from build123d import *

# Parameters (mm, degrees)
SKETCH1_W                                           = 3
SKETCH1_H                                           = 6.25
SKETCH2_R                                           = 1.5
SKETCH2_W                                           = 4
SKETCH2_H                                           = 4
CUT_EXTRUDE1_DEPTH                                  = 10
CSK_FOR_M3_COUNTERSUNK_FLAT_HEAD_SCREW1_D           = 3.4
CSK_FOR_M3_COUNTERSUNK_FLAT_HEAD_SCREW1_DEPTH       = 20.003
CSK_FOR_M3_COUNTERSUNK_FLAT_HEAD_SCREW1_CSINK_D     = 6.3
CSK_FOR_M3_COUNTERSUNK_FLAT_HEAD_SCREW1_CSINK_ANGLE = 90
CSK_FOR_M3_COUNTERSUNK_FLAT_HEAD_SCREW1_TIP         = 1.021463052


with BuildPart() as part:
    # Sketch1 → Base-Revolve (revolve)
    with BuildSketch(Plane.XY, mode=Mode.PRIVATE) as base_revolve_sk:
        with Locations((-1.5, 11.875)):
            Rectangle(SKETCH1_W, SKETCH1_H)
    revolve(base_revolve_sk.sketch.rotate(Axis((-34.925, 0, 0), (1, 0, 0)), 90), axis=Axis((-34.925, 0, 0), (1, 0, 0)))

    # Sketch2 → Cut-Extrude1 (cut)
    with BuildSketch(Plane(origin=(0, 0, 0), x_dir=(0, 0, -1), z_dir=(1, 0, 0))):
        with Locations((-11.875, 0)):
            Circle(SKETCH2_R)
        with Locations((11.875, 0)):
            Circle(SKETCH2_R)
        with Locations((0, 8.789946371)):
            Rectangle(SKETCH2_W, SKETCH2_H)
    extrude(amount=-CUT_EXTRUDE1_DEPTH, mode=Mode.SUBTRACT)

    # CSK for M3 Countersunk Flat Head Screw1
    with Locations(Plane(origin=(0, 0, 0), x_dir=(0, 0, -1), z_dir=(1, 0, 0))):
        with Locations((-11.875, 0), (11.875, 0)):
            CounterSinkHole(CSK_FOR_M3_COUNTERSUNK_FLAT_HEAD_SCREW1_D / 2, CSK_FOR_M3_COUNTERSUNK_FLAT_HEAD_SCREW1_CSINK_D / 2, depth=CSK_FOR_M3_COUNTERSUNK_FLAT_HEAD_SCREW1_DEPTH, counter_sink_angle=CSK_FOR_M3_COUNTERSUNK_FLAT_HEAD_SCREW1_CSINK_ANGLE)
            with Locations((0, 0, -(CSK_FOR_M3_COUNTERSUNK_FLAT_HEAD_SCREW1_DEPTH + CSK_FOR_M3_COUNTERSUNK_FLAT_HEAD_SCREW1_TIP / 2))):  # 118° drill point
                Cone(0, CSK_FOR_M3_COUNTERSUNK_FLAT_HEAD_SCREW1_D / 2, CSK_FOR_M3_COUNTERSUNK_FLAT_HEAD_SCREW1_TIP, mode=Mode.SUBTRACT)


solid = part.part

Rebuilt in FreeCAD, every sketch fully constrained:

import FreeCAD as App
import Part
import Sketcher

V = App.Vector

doc = App.newDocument("Part")
params = doc.addObject("Spreadsheet::Sheet", "Params")
for row, (alias, value) in enumerate([
    ("sketch1_width", "3 mm"),
    ("sketch1_height", "6.25 mm"),
    ("revolution_angle", "360 deg"),
    ("sketch2_diameter", "3 mm"),
    ("sketch2_width", "4 mm"),
    ("pocket1_length", "10 mm"),
    ("sketch3_diameter", "3.4 mm"),
    ("hole_diameter", "3.4 mm"),
    ("hole_depth", "20.003 mm"),
    ("hole_csink_diameter", "6.3 mm"),
], start=1):
    params.set(f"A{row}", alias)
    params.set(f"B{row}", "=" + value)
    params.setAlias(f"B{row}", alias)

body = doc.addObject("PartDesign::Body", "Body")

# Sketch on XY plane
sketch1 = body.newObject("Sketcher::SketchObject", "Sketch")
sketch1.AttachmentSupport = (doc.getObject("XY_Plane"), [""])
sketch1.MapMode = "FlatFace"
sketch1.addGeometry([
    Part.LineSegment(V(-3, 15, 0), V(-3, 8.8, 0)),
    Part.LineSegment(V(-3, 8.8, 0), V(0, 8.8, 0)),
    Part.LineSegment(V(0, 8.8, 0), V(0, 15, 0)),
    Part.LineSegment(V(0, 15, 0), V(-3, 15, 0)),
], False)
sketch1.addConstraint([
    Sketcher.Constraint("Coincident", 0, 2, 1, 1),
    Sketcher.Constraint("Coincident", 1, 2, 2, 1),
    Sketcher.Constraint("Coincident", 2, 2, 3, 1),
    Sketcher.Constraint("Coincident", 3, 2, 0, 1),
    Sketcher.Constraint("Vertical", 0),
    Sketcher.Constraint("Horizontal", 1),
    Sketcher.Constraint("Vertical", 2),
    Sketcher.Constraint("Horizontal", 3),
    Sketcher.Constraint("PointOnObject", 1, 2, -2),
    Sketcher.Constraint("DistanceX", 1, 1, 1, 2, 3.0),
    Sketcher.Constraint("DistanceY", -1, 1, 2, 2, 15.0),
    Sketcher.Constraint("DistanceY", 0, 2, 0, 1, 6.25),
])
sketch1.setExpression("Constraints[9]", "Params.sketch1_width")
sketch1.setExpression("Constraints[11]", "Params.sketch1_height")
revolution = body.newObject("PartDesign::Revolution", "Revolution")
revolution.Profile = sketch1
revolution.ReferenceAxis = (sketch1, ["H_Axis"])
revolution.setExpression("Angle", "Params.revolution_angle")

# Sketch on YZ plane
sketch2 = body.newObject("Sketcher::SketchObject", "Sketch001")
sketch2.AttachmentSupport = (doc.getObject("YZ_Plane"), [""])
sketch2.MapMode = "FlatFace"
sketch2.addGeometry([
    Part.Circle(V(0, 11.9, 0), V(0, 0, 1), 1.5),  # 0
    Part.Circle(V(0, -11.9, 0), V(0, 0, 1), 1.5),  # 1
    Part.LineSegment(V(10.8, 2, 0), V(6.8, 2, 0)),  # 2
    Part.LineSegment(V(6.8, 2, 0), V(6.8, -2, 0)),  # 3
    Part.LineSegment(V(6.8, -2, 0), V(10.8, -2, 0)),  # 4
    Part.LineSegment(V(10.8, -2, 0), V(10.8, 2, 0)),  # 5
], False)
sketch2.addConstraint([
    Sketcher.Constraint("Coincident", 2, 2, 3, 1),
    Sketcher.Constraint("Coincident", 3, 2, 4, 1),
    Sketcher.Constraint("Coincident", 4, 2, 5, 1),
    Sketcher.Constraint("Coincident", 5, 2, 2, 1),
    Sketcher.Constraint("Horizontal", 2),
    Sketcher.Constraint("Vertical", 3),
    Sketcher.Constraint("Horizontal", 4),
    Sketcher.Constraint("Vertical", 5),
    Sketcher.Constraint("Equal", 0, 1),
    Sketcher.Constraint("Symmetric", 0, 3, 1, 3, -1, 1),
    Sketcher.Constraint("PointOnObject", 0, 3, -2),
    Sketcher.Constraint("Equal", 4, 3),
    Sketcher.Constraint("Diameter", 0, 3.0),
    Sketcher.Constraint("DistanceX", 2, 2, 2, 1, 4.0),
    Sketcher.Constraint("DistanceY", -1, 1, 2, 2, 2.0),
    Sketcher.Constraint("DistanceY", 1, 3, 0, 3, 23.75),
    Sketcher.Constraint("DistanceX", -1, 1, 2, 2, 6.789946),
])
sketch2.setExpression("Constraints[12]", "Params.sketch2_diameter")
sketch2.setExpression("Constraints[13]", "Params.sketch2_width")
pocket1 = body.newObject("PartDesign::Pocket", "Pocket")
pocket1.Profile = sketch2
pocket1.setExpression("Length", "Params.pocket1_length")

# Sketch on YZ plane
sketch3 = body.newObject("Sketcher::SketchObject", "Sketch002")
sketch3.AttachmentSupport = (doc.getObject("YZ_Plane"), [""])
sketch3.MapMode = "FlatFace"
sketch3.addGeometry([
    Part.Circle(V(0, 11.9, 0), V(0, 0, 1), 1.7),
    Part.Circle(V(0, -11.9, 0), V(0, 0, 1), 1.7),
], False)
sketch3.addConstraint([
    Sketcher.Constraint("Equal", 0, 1),
    Sketcher.Constraint("Symmetric", 0, 3, 1, 3, -1, 1),
    Sketcher.Constraint("PointOnObject", 0, 3, -2),
    Sketcher.Constraint("Diameter", 0, 3.4),
    Sketcher.Constraint("DistanceY", 1, 3, 0, 3, 23.75),
])
sketch3.setExpression("Constraints[3]", "Params.sketch3_diameter")
doc.recompute()
hole = body.newObject("PartDesign::Hole", "Hole")
hole.Profile = sketch3
hole.ThreadType = "None"
hole.setExpression("Diameter", "Params.hole_diameter")
hole.DepthType = "Dimension"
hole.setExpression("Depth", "Params.hole_depth")
hole.DrillPoint = "Angled"
hole.DrillPointAngle = 118
hole.HoleCutType = "Countersink"
hole.setExpression("HoleCutDiameter", "Params.hole_csink_diameter")
hole.HoleCutCountersinkAngle = 90

doc.recompute()
